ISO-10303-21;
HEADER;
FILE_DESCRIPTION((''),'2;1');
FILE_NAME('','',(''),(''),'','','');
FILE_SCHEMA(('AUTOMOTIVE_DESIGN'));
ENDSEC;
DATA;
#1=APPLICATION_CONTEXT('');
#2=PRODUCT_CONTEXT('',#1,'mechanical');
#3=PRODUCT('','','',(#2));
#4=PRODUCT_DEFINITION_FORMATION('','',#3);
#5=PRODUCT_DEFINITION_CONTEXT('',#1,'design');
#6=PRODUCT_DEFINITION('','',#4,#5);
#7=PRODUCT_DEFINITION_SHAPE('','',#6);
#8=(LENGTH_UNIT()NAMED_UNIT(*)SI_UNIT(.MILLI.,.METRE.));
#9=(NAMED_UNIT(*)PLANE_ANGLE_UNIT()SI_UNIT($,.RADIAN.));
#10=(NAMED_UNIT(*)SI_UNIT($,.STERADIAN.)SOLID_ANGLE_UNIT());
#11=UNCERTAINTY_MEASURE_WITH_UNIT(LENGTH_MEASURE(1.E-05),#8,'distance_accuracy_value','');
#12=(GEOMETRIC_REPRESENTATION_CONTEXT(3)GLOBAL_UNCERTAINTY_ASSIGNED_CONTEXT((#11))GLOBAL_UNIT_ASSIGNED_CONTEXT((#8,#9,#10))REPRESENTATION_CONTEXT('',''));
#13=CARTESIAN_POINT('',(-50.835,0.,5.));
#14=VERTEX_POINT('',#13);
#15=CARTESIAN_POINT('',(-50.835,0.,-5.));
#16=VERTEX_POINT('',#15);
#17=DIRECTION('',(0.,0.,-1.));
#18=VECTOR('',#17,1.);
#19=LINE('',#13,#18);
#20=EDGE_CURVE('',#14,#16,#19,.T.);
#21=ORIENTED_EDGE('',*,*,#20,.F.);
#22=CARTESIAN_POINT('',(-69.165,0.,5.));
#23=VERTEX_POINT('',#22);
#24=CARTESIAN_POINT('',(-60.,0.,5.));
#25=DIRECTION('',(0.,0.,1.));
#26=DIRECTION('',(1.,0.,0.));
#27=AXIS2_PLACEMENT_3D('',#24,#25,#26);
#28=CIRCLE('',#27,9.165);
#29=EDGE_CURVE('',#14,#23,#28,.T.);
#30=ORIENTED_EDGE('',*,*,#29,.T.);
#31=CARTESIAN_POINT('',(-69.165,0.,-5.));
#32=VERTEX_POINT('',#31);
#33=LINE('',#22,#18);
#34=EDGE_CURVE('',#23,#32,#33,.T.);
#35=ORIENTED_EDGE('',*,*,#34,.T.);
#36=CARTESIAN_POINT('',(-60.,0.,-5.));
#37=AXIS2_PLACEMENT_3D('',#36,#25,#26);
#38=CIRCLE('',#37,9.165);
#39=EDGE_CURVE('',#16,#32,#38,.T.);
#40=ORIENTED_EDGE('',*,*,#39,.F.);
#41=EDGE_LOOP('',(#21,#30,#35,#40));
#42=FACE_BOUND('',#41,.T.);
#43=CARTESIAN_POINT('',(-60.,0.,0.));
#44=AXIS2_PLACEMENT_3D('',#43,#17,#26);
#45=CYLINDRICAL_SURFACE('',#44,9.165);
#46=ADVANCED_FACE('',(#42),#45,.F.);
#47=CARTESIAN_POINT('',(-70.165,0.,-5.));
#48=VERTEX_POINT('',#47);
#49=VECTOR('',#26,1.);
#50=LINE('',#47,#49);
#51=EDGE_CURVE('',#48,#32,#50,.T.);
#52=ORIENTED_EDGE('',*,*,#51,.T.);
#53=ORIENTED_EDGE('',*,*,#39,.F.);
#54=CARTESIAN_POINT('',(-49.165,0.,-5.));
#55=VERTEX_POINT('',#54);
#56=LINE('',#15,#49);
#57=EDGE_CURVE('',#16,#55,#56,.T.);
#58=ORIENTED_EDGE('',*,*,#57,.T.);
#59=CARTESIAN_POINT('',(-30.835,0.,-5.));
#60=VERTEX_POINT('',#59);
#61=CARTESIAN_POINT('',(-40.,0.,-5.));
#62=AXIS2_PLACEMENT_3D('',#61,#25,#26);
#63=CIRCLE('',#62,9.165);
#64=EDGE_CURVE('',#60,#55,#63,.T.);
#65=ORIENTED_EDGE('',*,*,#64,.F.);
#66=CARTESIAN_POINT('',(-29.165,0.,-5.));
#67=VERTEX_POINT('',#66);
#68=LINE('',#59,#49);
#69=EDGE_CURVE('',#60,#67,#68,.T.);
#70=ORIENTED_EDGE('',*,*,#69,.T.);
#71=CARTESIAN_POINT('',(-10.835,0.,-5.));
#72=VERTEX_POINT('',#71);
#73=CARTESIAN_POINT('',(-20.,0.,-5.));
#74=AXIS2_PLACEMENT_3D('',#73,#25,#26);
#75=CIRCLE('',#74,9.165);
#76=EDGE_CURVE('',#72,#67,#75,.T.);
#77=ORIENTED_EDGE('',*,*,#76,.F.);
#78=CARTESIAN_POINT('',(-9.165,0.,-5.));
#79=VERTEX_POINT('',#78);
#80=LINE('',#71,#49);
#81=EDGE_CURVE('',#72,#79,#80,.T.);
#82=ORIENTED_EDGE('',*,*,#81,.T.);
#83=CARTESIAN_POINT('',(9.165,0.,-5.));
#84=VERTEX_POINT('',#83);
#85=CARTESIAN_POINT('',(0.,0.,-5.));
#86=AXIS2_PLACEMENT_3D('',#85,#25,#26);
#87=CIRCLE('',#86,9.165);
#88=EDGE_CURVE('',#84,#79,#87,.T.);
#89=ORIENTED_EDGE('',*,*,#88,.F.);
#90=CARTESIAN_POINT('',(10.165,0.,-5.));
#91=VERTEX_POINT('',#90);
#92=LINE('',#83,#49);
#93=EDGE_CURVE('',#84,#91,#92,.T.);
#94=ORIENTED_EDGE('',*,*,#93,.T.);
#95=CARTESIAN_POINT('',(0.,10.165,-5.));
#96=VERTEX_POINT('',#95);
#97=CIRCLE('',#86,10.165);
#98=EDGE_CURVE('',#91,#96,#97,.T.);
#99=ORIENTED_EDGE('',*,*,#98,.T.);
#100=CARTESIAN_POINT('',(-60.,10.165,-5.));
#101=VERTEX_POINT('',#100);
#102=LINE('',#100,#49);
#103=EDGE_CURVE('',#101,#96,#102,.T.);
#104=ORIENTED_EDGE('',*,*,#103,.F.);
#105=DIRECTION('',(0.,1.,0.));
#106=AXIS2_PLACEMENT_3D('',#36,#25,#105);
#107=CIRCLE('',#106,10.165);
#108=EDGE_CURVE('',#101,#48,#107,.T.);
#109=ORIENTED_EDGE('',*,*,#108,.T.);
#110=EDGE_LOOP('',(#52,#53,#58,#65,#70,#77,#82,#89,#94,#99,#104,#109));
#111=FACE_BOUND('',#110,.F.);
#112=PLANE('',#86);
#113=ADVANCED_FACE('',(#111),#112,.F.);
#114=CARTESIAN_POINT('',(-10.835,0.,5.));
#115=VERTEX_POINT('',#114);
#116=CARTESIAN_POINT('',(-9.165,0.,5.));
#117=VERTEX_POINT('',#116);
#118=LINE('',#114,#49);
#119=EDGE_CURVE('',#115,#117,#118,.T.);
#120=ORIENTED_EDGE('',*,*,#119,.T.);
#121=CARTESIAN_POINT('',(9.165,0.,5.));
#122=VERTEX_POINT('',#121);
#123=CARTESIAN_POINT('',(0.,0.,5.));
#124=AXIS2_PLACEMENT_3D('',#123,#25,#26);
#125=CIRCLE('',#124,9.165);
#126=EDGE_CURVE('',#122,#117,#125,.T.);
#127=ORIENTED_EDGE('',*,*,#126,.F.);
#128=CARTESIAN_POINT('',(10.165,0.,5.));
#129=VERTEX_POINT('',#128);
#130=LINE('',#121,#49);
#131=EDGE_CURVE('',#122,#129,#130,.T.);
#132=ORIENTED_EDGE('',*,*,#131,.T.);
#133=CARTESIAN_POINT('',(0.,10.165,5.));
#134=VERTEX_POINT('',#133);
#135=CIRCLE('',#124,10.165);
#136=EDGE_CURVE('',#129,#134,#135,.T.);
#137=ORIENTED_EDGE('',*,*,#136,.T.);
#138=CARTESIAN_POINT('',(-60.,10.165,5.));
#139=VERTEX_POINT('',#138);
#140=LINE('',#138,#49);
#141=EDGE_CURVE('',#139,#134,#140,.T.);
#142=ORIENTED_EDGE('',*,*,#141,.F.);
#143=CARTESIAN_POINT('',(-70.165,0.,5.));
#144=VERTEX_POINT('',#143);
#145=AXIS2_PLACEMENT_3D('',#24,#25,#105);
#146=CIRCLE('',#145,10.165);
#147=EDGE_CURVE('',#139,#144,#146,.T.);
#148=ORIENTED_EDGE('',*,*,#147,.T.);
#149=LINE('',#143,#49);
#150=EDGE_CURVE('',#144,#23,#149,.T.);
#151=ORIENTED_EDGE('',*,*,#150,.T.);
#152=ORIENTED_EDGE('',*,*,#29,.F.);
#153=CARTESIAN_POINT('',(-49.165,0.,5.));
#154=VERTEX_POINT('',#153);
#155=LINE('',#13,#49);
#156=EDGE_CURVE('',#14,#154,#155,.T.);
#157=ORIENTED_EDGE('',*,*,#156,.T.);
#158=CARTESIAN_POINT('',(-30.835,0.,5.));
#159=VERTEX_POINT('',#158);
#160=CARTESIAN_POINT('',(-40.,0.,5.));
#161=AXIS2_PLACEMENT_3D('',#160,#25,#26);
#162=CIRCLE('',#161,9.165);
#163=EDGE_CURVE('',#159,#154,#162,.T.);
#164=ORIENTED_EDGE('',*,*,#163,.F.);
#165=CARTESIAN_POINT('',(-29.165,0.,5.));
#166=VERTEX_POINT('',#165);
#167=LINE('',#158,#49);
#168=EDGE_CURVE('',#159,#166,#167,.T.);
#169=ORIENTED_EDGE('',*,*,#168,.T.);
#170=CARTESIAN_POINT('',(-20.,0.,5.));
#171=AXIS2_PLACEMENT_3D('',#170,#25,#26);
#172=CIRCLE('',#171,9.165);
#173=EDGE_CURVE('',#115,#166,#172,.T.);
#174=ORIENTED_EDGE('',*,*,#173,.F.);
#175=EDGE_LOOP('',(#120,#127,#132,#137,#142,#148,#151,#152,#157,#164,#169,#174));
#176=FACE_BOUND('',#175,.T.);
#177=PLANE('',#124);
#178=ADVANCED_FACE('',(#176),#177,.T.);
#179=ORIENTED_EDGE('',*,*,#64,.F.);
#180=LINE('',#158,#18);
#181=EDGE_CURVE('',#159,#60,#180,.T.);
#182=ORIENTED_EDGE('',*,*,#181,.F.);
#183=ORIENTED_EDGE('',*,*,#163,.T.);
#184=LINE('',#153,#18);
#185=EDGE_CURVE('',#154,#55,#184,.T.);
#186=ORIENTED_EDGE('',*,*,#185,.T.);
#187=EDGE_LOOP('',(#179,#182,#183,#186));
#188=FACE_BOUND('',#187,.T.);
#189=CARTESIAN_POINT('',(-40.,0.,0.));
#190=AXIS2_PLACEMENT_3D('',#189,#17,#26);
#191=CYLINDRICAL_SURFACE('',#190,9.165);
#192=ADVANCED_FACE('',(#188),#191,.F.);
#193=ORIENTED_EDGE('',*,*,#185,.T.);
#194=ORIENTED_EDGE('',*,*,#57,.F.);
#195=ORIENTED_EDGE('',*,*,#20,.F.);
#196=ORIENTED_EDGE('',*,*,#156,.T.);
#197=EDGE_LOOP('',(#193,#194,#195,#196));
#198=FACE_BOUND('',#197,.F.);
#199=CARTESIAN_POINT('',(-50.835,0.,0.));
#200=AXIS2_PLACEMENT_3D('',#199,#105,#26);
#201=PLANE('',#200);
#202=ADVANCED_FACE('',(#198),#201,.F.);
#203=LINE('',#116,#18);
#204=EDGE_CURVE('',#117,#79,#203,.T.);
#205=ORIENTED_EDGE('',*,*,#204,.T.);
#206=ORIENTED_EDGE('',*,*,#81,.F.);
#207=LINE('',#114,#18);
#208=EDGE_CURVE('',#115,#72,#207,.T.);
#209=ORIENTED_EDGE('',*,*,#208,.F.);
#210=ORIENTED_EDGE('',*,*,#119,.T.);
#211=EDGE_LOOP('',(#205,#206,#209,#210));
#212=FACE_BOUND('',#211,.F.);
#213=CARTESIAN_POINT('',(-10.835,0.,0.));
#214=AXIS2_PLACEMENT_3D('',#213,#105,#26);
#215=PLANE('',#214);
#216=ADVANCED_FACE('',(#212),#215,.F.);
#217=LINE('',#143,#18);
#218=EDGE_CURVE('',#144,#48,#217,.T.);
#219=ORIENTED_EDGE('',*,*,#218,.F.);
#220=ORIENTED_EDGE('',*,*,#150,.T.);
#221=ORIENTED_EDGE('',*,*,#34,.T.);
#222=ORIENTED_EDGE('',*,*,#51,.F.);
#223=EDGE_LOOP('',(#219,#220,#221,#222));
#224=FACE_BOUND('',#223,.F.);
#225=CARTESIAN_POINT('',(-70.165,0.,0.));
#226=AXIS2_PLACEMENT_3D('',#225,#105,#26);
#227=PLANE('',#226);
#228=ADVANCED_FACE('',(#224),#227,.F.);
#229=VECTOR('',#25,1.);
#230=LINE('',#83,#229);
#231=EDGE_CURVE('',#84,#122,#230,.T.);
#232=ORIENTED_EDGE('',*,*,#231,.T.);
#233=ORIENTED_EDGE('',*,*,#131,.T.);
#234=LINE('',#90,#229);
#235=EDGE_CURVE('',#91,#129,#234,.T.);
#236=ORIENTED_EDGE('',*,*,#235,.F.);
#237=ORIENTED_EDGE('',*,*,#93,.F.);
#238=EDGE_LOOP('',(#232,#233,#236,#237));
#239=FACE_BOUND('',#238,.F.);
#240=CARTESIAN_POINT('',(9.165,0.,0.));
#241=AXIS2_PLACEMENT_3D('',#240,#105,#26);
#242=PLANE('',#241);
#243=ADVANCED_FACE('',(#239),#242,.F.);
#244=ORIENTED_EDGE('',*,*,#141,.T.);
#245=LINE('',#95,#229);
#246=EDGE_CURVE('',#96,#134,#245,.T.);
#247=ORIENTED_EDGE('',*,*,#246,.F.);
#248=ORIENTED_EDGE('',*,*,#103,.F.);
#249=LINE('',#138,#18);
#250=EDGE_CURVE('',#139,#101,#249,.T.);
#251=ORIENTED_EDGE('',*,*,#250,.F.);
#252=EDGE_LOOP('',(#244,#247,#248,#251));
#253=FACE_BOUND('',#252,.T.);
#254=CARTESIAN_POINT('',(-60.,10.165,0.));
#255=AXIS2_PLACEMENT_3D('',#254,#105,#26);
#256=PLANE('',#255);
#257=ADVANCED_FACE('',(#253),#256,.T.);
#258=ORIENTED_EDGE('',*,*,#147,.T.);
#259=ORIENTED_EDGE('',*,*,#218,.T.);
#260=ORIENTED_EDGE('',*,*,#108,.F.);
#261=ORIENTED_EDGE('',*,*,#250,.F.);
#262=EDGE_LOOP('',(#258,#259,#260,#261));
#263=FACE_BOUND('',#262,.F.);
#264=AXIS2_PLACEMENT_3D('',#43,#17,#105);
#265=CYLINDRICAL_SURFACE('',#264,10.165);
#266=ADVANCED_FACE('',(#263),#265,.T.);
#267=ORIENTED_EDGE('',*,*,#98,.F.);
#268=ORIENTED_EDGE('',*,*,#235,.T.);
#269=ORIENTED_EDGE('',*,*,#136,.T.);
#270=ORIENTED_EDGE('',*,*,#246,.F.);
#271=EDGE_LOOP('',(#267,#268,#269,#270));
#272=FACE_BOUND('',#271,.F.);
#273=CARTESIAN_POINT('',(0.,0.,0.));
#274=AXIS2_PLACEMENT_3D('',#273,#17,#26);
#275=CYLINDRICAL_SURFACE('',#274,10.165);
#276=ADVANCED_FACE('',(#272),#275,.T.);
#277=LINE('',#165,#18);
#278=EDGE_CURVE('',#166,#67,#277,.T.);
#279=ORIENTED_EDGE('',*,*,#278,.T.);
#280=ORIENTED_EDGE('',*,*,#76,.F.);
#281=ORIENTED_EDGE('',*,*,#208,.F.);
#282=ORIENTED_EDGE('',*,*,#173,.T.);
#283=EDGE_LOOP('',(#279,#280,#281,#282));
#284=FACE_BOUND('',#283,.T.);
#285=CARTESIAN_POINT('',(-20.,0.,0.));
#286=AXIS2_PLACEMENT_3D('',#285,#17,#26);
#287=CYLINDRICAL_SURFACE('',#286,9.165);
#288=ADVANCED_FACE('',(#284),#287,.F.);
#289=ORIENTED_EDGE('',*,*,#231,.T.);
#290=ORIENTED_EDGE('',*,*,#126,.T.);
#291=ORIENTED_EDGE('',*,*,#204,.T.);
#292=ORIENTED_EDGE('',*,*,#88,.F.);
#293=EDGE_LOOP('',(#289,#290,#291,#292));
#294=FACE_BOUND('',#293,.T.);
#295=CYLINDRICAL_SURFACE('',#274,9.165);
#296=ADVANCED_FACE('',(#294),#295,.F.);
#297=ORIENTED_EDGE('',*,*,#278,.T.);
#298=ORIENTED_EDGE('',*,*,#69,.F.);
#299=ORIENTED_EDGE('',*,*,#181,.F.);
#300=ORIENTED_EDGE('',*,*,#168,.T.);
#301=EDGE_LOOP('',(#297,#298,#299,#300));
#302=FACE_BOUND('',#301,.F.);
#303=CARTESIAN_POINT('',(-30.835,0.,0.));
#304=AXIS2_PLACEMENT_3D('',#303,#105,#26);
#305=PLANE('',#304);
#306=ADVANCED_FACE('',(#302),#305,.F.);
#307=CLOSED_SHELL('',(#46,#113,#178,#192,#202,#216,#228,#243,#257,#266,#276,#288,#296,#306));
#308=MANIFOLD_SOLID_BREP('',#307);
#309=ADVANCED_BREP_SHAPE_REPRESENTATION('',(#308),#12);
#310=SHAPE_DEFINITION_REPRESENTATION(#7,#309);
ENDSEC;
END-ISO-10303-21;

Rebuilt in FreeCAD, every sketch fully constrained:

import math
import FreeCAD as App
import Part
import Sketcher
from FreeCAD import Vector
Q = App.Units.Quantity

doc = App.newDocument("Part")
body = doc.addObject("PartDesign::Body", "Body")

# Sketch on XY plane
sketch1 = body.newObject("Sketcher::SketchObject", "Sketch")
sketch1.AttachmentSupport = (doc.getObject("XY_Plane"), [""])
sketch1.MapMode = "FlatFace"
sketch1.addGeometry([
    Part.ArcOfCircle(Part.Circle(Vector(0, 0, 0), Vector(0, 0, 1), 9.2), math.radians(0), math.radians(180)),  # 0
    Part.LineSegment(Vector(9.2, 0, 0), Vector(10.2, 0, 0)),  # 1
    Part.ArcOfCircle(Part.Circle(Vector(0, 0, 0), Vector(0, 0, 1), 10.2), math.radians(0), math.radians(90)),  # 2
    Part.LineSegment(Vector(0, 10.2, 0), Vector(-60, 10.2, 0)),  # 3
    Part.ArcOfCircle(Part.Circle(Vector(-60, 0, 0), Vector(0, 0, 1), 10.2), math.radians(90), math.radians(180)),  # 4
    Part.LineSegment(Vector(-70.2, 0, 0), Vector(-69.2, 0, 0)),  # 5
    Part.ArcOfCircle(Part.Circle(Vector(-60, 0, 0), Vector(0, 0, 1), 9.2), math.radians(0), math.radians(180)),  # 6
    Part.LineSegment(Vector(-50.8, 0, 0), Vector(-49.2, 0, 0)),  # 7
    Part.ArcOfCircle(Part.Circle(Vector(-40, 0, 0), Vector(0, 0, 1), 9.2), math.radians(0), math.radians(180)),  # 8
    Part.LineSegment(Vector(-30.8, 0, 0), Vector(-29.2, 0, 0)),  # 9
    Part.ArcOfCircle(Part.Circle(Vector(-20, 0, 0), Vector(0, 0, 1), 9.2), math.radians(0), math.radians(180)),  # 10
    Part.LineSegment(Vector(-10.8, 0, 0), Vector(-9.2, 0, 0)),  # 11
], False)
sketch1.addConstraint([
    Sketcher.Constraint("Coincident", 0, 1, 1, 1),
    Sketcher.Constraint("Coincident", 1, 2, 2, 1),
    Sketcher.Constraint("Tangent", 2, 2, 3, 1),
    Sketcher.Constraint("Tangent", 3, 2, 4, 1),
    Sketcher.Constraint("Coincident", 4, 2, 5, 1),
    Sketcher.Constraint("Coincident", 5, 2, 6, 2),
    Sketcher.Constraint("Coincident", 6, 1, 7, 1),
    Sketcher.Constraint("Coincident", 7, 2, 8, 2),
    Sketcher.Constraint("Coincident", 8, 1, 9, 1),
    Sketcher.Constraint("Coincident", 9, 2, 10, 2),
    Sketcher.Constraint("Coincident", 10, 1, 11, 1),
    Sketcher.Constraint("Coincident", 11, 2, 0, 2),
    Sketcher.Constraint("Horizontal", 1),
    Sketcher.Constraint("Horizontal", 3),
    Sketcher.Constraint("Horizontal", 5),
    Sketcher.Constraint("Horizontal", 7),
    Sketcher.Constraint("Horizontal", 9),
    Sketcher.Constraint("Horizontal", 11),
    Sketcher.Constraint("Coincident", 0, 3, -1, 1),
    Sketcher.Constraint("Coincident", 2, 3, -1, 1),
    Sketcher.Constraint("Coincident", 6, 3, 4, 3),
    Sketcher.Constraint("Equal", 2, 4),
    Sketcher.Constraint("Equal", 0, 6),
    Sketcher.Constraint("Equal", 6, 8),
    Sketcher.Constraint("Equal", 8, 10),
    Sketcher.Constraint("PointOnObject", 8, 3, -1),
    Sketcher.Constraint("PointOnObject", 10, 3, -1),
    Sketcher.Constraint("PointOnObject", 0, 1, -1),
    Sketcher.Constraint("PointOnObject", 4, 2, -1),
    Sketcher.Constraint("PointOnObject", 6, 1, -1),
    Sketcher.Constraint("PointOnObject", 8, 1, -1),
    Sketcher.Constraint("PointOnObject", 10, 1, -1),
    Sketcher.Constraint("Equal", 7, 9),
    Sketcher.Constraint("Equal", 9, 11),
    Sketcher.Constraint("DistanceX", 1, 1, 1, 2, Q("1 mm")),
    Sketcher.Constraint("DistanceX", 10, 3, -1, 1, Q("20 mm")),
    Sketcher.Constraint("Radius", 0, Q("9.165 mm")),
])
pad1 = body.newObject("PartDesign::Pad", "Pad")
pad1.Profile = sketch1
pad1.Length = 10
pad1.Midplane = True

doc.recompute()
